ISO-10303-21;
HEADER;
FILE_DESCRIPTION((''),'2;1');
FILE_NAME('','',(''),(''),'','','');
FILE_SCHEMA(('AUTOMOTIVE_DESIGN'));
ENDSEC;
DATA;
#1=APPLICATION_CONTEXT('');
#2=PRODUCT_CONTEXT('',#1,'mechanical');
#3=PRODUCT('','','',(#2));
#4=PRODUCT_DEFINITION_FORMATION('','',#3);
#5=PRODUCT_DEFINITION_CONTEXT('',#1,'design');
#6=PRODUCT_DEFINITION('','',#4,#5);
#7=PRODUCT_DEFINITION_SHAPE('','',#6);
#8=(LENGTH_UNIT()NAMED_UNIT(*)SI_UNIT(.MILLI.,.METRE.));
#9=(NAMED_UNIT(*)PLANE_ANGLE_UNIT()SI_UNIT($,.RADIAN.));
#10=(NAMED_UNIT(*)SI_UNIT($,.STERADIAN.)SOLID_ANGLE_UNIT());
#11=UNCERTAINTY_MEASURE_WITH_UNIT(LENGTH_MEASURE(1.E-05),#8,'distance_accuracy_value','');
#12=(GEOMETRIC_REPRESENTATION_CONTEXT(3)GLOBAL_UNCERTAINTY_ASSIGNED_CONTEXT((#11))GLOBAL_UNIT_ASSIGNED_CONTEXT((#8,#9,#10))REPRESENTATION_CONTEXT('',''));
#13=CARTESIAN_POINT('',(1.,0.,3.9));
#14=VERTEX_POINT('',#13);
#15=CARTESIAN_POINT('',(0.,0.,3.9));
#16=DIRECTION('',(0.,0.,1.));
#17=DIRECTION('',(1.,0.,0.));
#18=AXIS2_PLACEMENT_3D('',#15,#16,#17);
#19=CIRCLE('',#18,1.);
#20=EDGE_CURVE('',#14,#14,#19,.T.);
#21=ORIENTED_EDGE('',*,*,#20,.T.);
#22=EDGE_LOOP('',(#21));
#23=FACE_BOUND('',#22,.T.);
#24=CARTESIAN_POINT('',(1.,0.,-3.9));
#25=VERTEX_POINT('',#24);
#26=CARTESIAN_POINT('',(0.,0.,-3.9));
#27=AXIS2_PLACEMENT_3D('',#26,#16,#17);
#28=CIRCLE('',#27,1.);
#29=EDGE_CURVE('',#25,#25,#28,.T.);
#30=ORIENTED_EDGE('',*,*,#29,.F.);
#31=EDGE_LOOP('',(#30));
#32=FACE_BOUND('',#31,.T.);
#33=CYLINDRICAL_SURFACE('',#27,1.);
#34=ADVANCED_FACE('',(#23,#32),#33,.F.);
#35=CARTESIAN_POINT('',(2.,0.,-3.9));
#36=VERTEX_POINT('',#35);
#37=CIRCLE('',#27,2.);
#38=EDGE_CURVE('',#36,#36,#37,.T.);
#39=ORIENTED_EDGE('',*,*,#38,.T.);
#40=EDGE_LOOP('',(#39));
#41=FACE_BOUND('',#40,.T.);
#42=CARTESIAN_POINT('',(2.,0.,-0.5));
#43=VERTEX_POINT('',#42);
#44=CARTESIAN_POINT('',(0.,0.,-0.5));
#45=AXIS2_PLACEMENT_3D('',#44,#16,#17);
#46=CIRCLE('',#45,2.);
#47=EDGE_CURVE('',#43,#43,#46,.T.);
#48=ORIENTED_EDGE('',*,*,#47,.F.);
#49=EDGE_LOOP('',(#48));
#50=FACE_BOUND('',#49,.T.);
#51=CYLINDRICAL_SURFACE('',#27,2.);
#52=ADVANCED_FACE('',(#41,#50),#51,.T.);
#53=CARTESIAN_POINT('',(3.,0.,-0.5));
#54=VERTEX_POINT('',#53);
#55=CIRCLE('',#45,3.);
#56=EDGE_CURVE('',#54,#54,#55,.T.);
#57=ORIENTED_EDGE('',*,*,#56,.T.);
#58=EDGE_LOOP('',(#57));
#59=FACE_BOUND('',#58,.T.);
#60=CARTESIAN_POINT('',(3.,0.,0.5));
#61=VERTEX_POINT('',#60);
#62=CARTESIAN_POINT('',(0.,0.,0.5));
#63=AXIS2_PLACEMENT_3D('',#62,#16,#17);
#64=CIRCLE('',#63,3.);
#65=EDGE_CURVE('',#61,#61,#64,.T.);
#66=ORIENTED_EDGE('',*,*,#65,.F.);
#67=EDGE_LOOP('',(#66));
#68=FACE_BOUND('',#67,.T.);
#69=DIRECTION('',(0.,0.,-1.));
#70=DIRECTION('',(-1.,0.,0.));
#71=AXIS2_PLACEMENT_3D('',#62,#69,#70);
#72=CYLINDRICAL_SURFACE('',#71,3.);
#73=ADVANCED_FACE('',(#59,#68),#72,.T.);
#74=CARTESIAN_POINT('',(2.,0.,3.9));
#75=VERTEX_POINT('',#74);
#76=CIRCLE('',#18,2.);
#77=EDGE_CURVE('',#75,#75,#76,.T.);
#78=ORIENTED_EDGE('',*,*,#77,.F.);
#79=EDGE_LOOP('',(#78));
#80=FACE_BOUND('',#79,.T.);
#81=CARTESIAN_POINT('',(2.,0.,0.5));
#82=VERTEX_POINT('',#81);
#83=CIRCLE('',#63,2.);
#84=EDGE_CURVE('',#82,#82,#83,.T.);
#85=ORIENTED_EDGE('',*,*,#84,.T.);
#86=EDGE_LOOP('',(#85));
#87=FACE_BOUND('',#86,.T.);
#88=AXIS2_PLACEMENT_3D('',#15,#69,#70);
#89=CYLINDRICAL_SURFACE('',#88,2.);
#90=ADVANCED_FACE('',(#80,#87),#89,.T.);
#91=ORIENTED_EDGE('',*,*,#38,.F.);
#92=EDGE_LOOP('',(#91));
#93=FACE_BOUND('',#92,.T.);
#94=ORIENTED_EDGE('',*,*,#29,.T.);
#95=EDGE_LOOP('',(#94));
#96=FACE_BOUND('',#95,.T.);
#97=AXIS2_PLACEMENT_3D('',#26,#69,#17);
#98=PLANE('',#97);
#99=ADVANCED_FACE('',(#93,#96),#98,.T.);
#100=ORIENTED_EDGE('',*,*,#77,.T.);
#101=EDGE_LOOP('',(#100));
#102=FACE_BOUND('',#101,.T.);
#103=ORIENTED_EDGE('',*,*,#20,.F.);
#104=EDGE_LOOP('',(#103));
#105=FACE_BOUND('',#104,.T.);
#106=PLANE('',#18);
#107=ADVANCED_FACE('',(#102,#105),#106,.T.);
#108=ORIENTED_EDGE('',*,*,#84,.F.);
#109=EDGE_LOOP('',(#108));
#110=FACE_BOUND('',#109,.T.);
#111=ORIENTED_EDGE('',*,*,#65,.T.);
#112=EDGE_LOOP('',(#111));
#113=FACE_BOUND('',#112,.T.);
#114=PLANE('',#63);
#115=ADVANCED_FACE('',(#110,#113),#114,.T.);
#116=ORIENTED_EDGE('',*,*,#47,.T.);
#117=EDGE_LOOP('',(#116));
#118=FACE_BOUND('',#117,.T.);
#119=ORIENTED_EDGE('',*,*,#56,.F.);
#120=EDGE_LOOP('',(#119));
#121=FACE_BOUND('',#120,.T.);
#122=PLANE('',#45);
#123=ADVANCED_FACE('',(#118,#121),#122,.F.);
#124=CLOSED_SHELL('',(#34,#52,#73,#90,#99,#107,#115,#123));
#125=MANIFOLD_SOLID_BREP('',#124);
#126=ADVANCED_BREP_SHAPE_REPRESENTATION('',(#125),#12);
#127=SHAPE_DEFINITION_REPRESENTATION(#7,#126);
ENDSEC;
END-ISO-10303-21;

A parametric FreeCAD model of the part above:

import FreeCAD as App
import Part
import Sketcher
from FreeCAD import Vector
Q = App.Units.Quantity

doc = App.newDocument("Part")
body = doc.addObject("PartDesign::Body", "Body")

# Sketch on XY plane
sketch1 = doc.addObject("Sketcher::SketchObject", "Sketch")
body.addObject(sketch1)
sketch1.AttachmentSupport = (doc.XY_Plane, [""])
sketch1.MapMode = "FlatFace"
sketch1.addGeometry(Part.Circle(Vector(0, 0, 0), Vector(0, 0, 1), 3), False)
sketch1.addConstraint([
    Sketcher.Constraint("Coincident", 0, 3, -1, 1),
    Sketcher.Constraint("Diameter", 0, Q("6 mm")),
])
pad1 = doc.addObject("PartDesign::Pad", "Pad")
body.addObject(pad1)
pad1.Profile = sketch1
pad1.Length = 1
pad1.Midplane = True

# Sketch on XY plane
sketch2 = doc.addObject("Sketcher::SketchObject", "Sketch001")
body.addObject(sketch2)
sketch2.AttachmentSupport = (doc.XY_Plane, [""])
sketch2.MapMode = "FlatFace"
sketch2.AttachmentOffset = App.Placement(Vector(0, 0, 0.5), App.Rotation())
sketch2.addGeometry(Part.Circle(Vector(0, 0, 0), Vector(0, 0, 1), 2), False)
sketch2.addConstraint([
    Sketcher.Constraint("Coincident", 0, 3, -1, 1),
    Sketcher.Constraint("Diameter", 0, Q("4 mm")),
])
pad2 = doc.addObject("PartDesign::Pad", "Pad001")
body.addObject(pad2)
pad2.Profile = sketch2
pad2.Length = 3.4
doc.recompute()

mirrored = doc.addObject("PartDesign::Mirrored", "Mirrored")
body.addObject(mirrored)
mirrored.Originals = [pad2]
mirrored.MirrorPlane = (doc.XY_Plane, [""])
body.Tip = mirrored

# Sketch on XY plane
sketch3 = doc.addObject("Sketcher::SketchObject", "Sketch002")
body.addObject(sketch3)
sketch3.AttachmentSupport = (doc.XY_Plane, [""])
sketch3.MapMode = "FlatFace"
sketch3.AttachmentOffset = App.Placement(Vector(0, 0, 3.9), App.Rotation())
sketch3.addGeometry(Part.Circle(Vector(0, 0, 0), Vector(0, 0, 1), 1), False)
sketch3.addConstraint([
    Sketcher.Constraint("Coincident", 0, 3, -1, 1),
    Sketcher.Constraint("Diameter", 0, Q("2 mm")),
])
pocket1 = doc.addObject("PartDesign::Pocket", "Pocket")
body.addObject(pocket1)
pocket1.Profile = sketch3
pocket1.Type = "ThroughAll"

doc.recompute()
